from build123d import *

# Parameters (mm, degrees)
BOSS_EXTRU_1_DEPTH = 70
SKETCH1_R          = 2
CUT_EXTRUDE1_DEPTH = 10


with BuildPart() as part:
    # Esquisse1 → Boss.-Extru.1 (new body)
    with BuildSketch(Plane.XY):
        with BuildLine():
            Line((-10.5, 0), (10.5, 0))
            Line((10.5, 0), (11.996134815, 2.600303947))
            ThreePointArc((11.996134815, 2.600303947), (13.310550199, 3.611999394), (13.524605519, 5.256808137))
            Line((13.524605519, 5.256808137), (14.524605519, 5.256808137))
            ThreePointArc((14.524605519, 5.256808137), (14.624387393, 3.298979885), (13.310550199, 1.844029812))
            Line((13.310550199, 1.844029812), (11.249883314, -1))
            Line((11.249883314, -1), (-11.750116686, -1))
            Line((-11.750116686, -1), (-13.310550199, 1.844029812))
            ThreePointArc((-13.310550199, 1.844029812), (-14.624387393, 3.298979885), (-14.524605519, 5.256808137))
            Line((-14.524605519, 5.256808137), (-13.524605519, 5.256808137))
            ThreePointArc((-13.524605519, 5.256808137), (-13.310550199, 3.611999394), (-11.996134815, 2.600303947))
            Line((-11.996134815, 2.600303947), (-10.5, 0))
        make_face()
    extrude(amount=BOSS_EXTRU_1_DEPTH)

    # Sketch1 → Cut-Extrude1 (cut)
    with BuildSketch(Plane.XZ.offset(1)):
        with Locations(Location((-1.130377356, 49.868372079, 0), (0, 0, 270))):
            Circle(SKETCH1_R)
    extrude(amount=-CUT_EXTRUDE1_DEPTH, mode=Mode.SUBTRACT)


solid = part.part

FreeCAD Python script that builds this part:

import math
import FreeCAD as App
import Part
import Sketcher

doc = App.newDocument("Part")
body = doc.addObject("PartDesign::Body", "Body")

sketch1 = body.newObject("Sketcher::SketchObject", "Sketch")
sketch1.AttachmentSupport = (doc.getObject("XY_Plane"), [""])
sketch1.MapMode = "FlatFace"
sketch1.addGeometry([
    Part.LineSegment(App.Vector(10.5, 0, 0), App.Vector(-10.5, 0, 0)),
    Part.LineSegment(App.Vector(-10.5, 0, 0), App.Vector(-12, 2.6, 0)),
    Part.ArcOfCircle(Part.Circle(App.Vector(-11.4, 4.7, 0), App.Vector(0, 0, 1), 2.2), math.radians(165), math.radians(255)),
    Part.LineSegment(App.Vector(-13.5, 5.3, 0), App.Vector(-14.5, 5.3, 0)),
    Part.ArcOfCircle(Part.Circle(App.Vector(-12.2, 4.2, 0), App.Vector(0, 0, 1), 2.6), math.radians(155), math.radians(245)),
    Part.LineSegment(App.Vector(-13.3, 1.8, 0), App.Vector(-11.8, -1, 0)),
    Part.LineSegment(App.Vector(-11.8, -1, 0), App.Vector(11.2, -1, 0)),
    Part.LineSegment(App.Vector(11.2, -1, 0), App.Vector(13.3, 1.8, 0)),
    Part.ArcOfCircle(Part.Circle(App.Vector(12.2, 4.2, 0), App.Vector(0, 0, 1), 2.6), math.radians(-65), math.radians(25)),
    Part.LineSegment(App.Vector(14.5, 5.3, 0), App.Vector(13.5, 5.3, 0)),
    Part.ArcOfCircle(Part.Circle(App.Vector(11.4, 4.7, 0), App.Vector(0, 0, 1), 2.2), math.radians(-75), math.radians(15)),
    Part.LineSegment(App.Vector(12, 2.6, 0), App.Vector(10.5, 0, 0)),
], False)
sketch1.addConstraint([
    Sketcher.Constraint("Coincident", 0, 2, 1, 1),
    Sketcher.Constraint("Coincident", 1, 2, 2, 2),
    Sketcher.Constraint("Coincident", 2, 1, 3, 1),
    Sketcher.Constraint("Coincident", 3, 2, 4, 1),
    Sketcher.Constraint("Coincident", 4, 2, 5, 1),
    Sketcher.Constraint("Coincident", 5, 2, 6, 1),
    Sketcher.Constraint("Coincident", 6, 2, 7, 1),
    Sketcher.Constraint("Coincident", 7, 2, 8, 1),
    Sketcher.Constraint("Coincident", 8, 2, 9, 1),
    Sketcher.Constraint("Coincident", 9, 2, 10, 2),
    Sketcher.Constraint("Coincident", 10, 1, 11, 1),
    Sketcher.Constraint("Coincident", 11, 2, 0, 1),
    Sketcher.Constraint("Horizontal", 0),
    Sketcher.Constraint("Horizontal", 3),
    Sketcher.Constraint("Horizontal", 6),
    Sketcher.Constraint("Horizontal", 9),
    Sketcher.Constraint("Equal", 4, 8),
    Sketcher.Constraint("Equal", 2, 10),
    Sketcher.Constraint("Symmetric", 0, 2, 11, 2, -1, 1),
    Sketcher.Constraint("Symmetric", 4, 3, 8, 3, -2),
    Sketcher.Constraint("Symmetric", 2, 3, 10, 3, -2),
    Sketcher.Constraint("Horizontal", 4, 2, 7, 2),
    Sketcher.Constraint("Horizontal", 3, 2, 8, 2),
    Sketcher.Constraint("Horizontal", 1, 2, 10, 1),
    Sketcher.Constraint("DistanceX", 0, 2, 0, 1, 21.0),
    Sketcher.Constraint("DistanceX", 3, 2, 3, 1, 1.0),
    Sketcher.Constraint("DistanceX", 6, 1, 6, 2, 23.0),
    Sketcher.Constraint("Distance", 1, 3.0),
    Sketcher.Constraint("DistanceY", 5, 2, -1, 1, 1.0),
    Sketcher.Constraint("Radius", 2, 2.167168),
    Sketcher.Constraint("Radius", 4, 2.561346),
    Sketcher.Constraint("DistanceX", 5, 2, 2, 3, 0.317999),
    Sketcher.Constraint("Distance", 7, 3.512101),
    Sketcher.Constraint("Distance", 5, 3.243988),
    Sketcher.Constraint("DistanceX", 2, 3, -1, 1, 11.432118),
    Sketcher.Constraint("DistanceY", -1, 1, 2, 3, 4.692791),
    Sketcher.Constraint("DistanceX", 4, 3, -1, 1, 12.211189),
])
pad1 = body.newObject("PartDesign::Pad", "Pad")
pad1.Profile = sketch1
pad1.Length = 70

sketch2 = body.newObject("Sketcher::SketchObject", "Sketch001")
sketch2.AttachmentSupport = (doc.getObject("XZ_Plane"), [""])
sketch2.MapMode = "FlatFace"
sketch2.AttachmentOffset = App.Placement(App.Vector(0, 0, 1), App.Rotation())
sketch2.addGeometry(Part.Circle(App.Vector(-1.1, 49.9, 0), App.Vector(0, 0, 1), 2), False)
sketch2.addConstraint([
    Sketcher.Constraint("Diameter", 0, 4.0),
    Sketcher.Constraint("DistanceX", 0, 3, -1, 1, 1.130377),
    Sketcher.Constraint("DistanceY", -1, 1, 0, 3, 49.868372),
])
pocket1 = body.newObject("PartDesign::Pocket", "Pocket")
pocket1.Profile = sketch2
pocket1.Length = 10

doc.recompute()
